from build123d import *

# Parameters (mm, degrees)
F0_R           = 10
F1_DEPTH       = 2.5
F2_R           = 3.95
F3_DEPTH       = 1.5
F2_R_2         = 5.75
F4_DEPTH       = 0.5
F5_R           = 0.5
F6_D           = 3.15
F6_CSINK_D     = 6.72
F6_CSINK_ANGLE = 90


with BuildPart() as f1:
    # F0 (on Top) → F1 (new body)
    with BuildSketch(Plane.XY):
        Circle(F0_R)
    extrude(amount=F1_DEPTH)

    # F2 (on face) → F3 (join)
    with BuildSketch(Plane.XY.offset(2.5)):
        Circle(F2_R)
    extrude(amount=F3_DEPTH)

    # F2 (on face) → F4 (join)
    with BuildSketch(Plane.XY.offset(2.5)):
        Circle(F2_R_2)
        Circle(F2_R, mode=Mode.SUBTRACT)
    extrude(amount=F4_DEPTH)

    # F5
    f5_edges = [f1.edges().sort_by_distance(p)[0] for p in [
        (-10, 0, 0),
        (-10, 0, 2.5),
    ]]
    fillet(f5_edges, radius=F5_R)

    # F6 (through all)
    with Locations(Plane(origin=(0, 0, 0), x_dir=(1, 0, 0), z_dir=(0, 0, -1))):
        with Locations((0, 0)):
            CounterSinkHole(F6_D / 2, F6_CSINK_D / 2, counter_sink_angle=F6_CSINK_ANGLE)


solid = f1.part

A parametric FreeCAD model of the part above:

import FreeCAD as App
import Part
import Sketcher

V = App.Vector


def edges_at(feature, points):
    """Names of the edges that pass closest to the given points."""
    edges = feature.Shape.Edges
    near = lambda p: min(range(len(edges)), key=lambda i: edges[i].distToShape(Part.Vertex(*p))[0])
    return sorted({f"Edge{near(p) + 1}" for p in points})

doc = App.newDocument("Part")
params = doc.addObject("Spreadsheet::Sheet", "Params")
for row, (alias, value) in enumerate([
    ("sketch1_diameter", "20 mm"),
    ("pad1_length", "2.5 mm"),
    ("sketch2_diameter", "7.9 mm"),
    ("pad2_length", "1.5 mm"),
    ("sketch3_diameter", "11.5 mm"),
    ("sketch3_diameter2", "7.9 mm"),
    ("pad3_length", "0.5 mm"),
    ("fillet_radius", "0.5 mm"),
    ("sketch4_diameter", "3.15 mm"),
    ("hole_diameter", "3.15 mm"),
    ("hole_csink_diameter", "6.72 mm"),
], start=1):
    params.set(f"A{row}", alias)
    params.set(f"B{row}", "=" + value)
    params.setAlias(f"B{row}", alias)

body = doc.addObject("PartDesign::Body", "Body")

sketch1 = doc.addObject("Sketcher::SketchObject", "Sketch")
body.addObject(sketch1)
sketch1.AttachmentSupport = (doc.XY_Plane, [""])
sketch1.MapMode = "FlatFace"
sketch1.addGeometry(Part.Circle(V(0, 0, 0), V(0, 0, 1), 10), False)
sketch1.addConstraint([
    Sketcher.Constraint("Coincident", 0, 3, -1, 1),
    Sketcher.Constraint("Diameter", 0, 20.0),
])
sketch1.setExpression("Constraints[1]", "Params.sketch1_diameter")
pad1 = doc.addObject("PartDesign::Pad", "Pad")
body.addObject(pad1)
pad1.Profile = sketch1
pad1.setExpression("Length", "Params.pad1_length")

sketch2 = doc.addObject("Sketcher::SketchObject", "Sketch001")
body.addObject(sketch2)
sketch2.AttachmentSupport = (doc.XY_Plane, [""])
sketch2.MapMode = "FlatFace"
sketch2.AttachmentOffset = App.Placement(V(0, 0, 2.5), App.Rotation())
sketch2.addGeometry(Part.Circle(V(0, 0, 0), V(0, 0, 1), 3.95), False)
sketch2.addConstraint([
    Sketcher.Constraint("Coincident", 0, 3, -1, 1),
    Sketcher.Constraint("Diameter", 0, 7.9),
])
sketch2.setExpression("Constraints[1]", "Params.sketch2_diameter")
pad2 = doc.addObject("PartDesign::Pad", "Pad001")
body.addObject(pad2)
pad2.Profile = sketch2
pad2.setExpression("Length", "Params.pad2_length")

sketch3 = doc.addObject("Sketcher::SketchObject", "Sketch002")
body.addObject(sketch3)
sketch3.AttachmentSupport = (doc.XY_Plane, [""])
sketch3.MapMode = "FlatFace"
sketch3.AttachmentOffset = App.Placement(V(0, 0, 2.5), App.Rotation())
sketch3.addGeometry([
    Part.Circle(V(0, 0, 0), V(0, 0, 1), 5.75),
    Part.Circle(V(0, 0, 0), V(0, 0, 1), 3.95),
], False)
sketch3.addConstraint([
    Sketcher.Constraint("Coincident", 0, 3, -1, 1),
    Sketcher.Constraint("Coincident", 1, 3, -1, 1),
    Sketcher.Constraint("Diameter", 0, 11.5),
    Sketcher.Constraint("Diameter", 1, 7.9),
])
sketch3.setExpression("Constraints[2]", "Params.sketch3_diameter")
sketch3.setExpression("Constraints[3]", "Params.sketch3_diameter2")
pad3 = doc.addObject("PartDesign::Pad", "Pad002")
body.addObject(pad3)
pad3.Profile = sketch3
pad3.setExpression("Length", "Params.pad3_length")
doc.recompute()

fillet = doc.addObject("PartDesign::Fillet", "Fillet")
body.addObject(fillet)
fillet.Base = (pad3, edges_at(pad3, [(-10, 0, 0), (-10, 0, 2.5)]))
fillet.setExpression("Radius", "Params.fillet_radius")

sketch4 = doc.addObject("Sketcher::SketchObject", "Sketch003")
body.addObject(sketch4)
sketch4.AttachmentSupport = (doc.XY_Plane, [""])
sketch4.MapMode = "FlatFace"
sketch4.addGeometry(Part.Circle(V(0, 0, 0), V(0, 0, 1), 1.575), False)
sketch4.addConstraint([
    Sketcher.Constraint("Coincident", 0, 3, -1, 1),
    Sketcher.Constraint("Diameter", 0, 3.15),
])
sketch4.setExpression("Constraints[1]", "Params.sketch4_diameter")
doc.recompute()
hole = doc.addObject("PartDesign::Hole", "Hole")
body.addObject(hole)
hole.Profile = sketch4
hole.ThreadType = "None"
hole.setExpression("Diameter", "Params.hole_diameter")
hole.DepthType = "ThroughAll"
hole.HoleCutType = "Countersink"
hole.setExpression("HoleCutDiameter", "Params.hole_csink_diameter")
hole.HoleCutCountersinkAngle = 90
hole.Reversed = True

doc.recompute()
